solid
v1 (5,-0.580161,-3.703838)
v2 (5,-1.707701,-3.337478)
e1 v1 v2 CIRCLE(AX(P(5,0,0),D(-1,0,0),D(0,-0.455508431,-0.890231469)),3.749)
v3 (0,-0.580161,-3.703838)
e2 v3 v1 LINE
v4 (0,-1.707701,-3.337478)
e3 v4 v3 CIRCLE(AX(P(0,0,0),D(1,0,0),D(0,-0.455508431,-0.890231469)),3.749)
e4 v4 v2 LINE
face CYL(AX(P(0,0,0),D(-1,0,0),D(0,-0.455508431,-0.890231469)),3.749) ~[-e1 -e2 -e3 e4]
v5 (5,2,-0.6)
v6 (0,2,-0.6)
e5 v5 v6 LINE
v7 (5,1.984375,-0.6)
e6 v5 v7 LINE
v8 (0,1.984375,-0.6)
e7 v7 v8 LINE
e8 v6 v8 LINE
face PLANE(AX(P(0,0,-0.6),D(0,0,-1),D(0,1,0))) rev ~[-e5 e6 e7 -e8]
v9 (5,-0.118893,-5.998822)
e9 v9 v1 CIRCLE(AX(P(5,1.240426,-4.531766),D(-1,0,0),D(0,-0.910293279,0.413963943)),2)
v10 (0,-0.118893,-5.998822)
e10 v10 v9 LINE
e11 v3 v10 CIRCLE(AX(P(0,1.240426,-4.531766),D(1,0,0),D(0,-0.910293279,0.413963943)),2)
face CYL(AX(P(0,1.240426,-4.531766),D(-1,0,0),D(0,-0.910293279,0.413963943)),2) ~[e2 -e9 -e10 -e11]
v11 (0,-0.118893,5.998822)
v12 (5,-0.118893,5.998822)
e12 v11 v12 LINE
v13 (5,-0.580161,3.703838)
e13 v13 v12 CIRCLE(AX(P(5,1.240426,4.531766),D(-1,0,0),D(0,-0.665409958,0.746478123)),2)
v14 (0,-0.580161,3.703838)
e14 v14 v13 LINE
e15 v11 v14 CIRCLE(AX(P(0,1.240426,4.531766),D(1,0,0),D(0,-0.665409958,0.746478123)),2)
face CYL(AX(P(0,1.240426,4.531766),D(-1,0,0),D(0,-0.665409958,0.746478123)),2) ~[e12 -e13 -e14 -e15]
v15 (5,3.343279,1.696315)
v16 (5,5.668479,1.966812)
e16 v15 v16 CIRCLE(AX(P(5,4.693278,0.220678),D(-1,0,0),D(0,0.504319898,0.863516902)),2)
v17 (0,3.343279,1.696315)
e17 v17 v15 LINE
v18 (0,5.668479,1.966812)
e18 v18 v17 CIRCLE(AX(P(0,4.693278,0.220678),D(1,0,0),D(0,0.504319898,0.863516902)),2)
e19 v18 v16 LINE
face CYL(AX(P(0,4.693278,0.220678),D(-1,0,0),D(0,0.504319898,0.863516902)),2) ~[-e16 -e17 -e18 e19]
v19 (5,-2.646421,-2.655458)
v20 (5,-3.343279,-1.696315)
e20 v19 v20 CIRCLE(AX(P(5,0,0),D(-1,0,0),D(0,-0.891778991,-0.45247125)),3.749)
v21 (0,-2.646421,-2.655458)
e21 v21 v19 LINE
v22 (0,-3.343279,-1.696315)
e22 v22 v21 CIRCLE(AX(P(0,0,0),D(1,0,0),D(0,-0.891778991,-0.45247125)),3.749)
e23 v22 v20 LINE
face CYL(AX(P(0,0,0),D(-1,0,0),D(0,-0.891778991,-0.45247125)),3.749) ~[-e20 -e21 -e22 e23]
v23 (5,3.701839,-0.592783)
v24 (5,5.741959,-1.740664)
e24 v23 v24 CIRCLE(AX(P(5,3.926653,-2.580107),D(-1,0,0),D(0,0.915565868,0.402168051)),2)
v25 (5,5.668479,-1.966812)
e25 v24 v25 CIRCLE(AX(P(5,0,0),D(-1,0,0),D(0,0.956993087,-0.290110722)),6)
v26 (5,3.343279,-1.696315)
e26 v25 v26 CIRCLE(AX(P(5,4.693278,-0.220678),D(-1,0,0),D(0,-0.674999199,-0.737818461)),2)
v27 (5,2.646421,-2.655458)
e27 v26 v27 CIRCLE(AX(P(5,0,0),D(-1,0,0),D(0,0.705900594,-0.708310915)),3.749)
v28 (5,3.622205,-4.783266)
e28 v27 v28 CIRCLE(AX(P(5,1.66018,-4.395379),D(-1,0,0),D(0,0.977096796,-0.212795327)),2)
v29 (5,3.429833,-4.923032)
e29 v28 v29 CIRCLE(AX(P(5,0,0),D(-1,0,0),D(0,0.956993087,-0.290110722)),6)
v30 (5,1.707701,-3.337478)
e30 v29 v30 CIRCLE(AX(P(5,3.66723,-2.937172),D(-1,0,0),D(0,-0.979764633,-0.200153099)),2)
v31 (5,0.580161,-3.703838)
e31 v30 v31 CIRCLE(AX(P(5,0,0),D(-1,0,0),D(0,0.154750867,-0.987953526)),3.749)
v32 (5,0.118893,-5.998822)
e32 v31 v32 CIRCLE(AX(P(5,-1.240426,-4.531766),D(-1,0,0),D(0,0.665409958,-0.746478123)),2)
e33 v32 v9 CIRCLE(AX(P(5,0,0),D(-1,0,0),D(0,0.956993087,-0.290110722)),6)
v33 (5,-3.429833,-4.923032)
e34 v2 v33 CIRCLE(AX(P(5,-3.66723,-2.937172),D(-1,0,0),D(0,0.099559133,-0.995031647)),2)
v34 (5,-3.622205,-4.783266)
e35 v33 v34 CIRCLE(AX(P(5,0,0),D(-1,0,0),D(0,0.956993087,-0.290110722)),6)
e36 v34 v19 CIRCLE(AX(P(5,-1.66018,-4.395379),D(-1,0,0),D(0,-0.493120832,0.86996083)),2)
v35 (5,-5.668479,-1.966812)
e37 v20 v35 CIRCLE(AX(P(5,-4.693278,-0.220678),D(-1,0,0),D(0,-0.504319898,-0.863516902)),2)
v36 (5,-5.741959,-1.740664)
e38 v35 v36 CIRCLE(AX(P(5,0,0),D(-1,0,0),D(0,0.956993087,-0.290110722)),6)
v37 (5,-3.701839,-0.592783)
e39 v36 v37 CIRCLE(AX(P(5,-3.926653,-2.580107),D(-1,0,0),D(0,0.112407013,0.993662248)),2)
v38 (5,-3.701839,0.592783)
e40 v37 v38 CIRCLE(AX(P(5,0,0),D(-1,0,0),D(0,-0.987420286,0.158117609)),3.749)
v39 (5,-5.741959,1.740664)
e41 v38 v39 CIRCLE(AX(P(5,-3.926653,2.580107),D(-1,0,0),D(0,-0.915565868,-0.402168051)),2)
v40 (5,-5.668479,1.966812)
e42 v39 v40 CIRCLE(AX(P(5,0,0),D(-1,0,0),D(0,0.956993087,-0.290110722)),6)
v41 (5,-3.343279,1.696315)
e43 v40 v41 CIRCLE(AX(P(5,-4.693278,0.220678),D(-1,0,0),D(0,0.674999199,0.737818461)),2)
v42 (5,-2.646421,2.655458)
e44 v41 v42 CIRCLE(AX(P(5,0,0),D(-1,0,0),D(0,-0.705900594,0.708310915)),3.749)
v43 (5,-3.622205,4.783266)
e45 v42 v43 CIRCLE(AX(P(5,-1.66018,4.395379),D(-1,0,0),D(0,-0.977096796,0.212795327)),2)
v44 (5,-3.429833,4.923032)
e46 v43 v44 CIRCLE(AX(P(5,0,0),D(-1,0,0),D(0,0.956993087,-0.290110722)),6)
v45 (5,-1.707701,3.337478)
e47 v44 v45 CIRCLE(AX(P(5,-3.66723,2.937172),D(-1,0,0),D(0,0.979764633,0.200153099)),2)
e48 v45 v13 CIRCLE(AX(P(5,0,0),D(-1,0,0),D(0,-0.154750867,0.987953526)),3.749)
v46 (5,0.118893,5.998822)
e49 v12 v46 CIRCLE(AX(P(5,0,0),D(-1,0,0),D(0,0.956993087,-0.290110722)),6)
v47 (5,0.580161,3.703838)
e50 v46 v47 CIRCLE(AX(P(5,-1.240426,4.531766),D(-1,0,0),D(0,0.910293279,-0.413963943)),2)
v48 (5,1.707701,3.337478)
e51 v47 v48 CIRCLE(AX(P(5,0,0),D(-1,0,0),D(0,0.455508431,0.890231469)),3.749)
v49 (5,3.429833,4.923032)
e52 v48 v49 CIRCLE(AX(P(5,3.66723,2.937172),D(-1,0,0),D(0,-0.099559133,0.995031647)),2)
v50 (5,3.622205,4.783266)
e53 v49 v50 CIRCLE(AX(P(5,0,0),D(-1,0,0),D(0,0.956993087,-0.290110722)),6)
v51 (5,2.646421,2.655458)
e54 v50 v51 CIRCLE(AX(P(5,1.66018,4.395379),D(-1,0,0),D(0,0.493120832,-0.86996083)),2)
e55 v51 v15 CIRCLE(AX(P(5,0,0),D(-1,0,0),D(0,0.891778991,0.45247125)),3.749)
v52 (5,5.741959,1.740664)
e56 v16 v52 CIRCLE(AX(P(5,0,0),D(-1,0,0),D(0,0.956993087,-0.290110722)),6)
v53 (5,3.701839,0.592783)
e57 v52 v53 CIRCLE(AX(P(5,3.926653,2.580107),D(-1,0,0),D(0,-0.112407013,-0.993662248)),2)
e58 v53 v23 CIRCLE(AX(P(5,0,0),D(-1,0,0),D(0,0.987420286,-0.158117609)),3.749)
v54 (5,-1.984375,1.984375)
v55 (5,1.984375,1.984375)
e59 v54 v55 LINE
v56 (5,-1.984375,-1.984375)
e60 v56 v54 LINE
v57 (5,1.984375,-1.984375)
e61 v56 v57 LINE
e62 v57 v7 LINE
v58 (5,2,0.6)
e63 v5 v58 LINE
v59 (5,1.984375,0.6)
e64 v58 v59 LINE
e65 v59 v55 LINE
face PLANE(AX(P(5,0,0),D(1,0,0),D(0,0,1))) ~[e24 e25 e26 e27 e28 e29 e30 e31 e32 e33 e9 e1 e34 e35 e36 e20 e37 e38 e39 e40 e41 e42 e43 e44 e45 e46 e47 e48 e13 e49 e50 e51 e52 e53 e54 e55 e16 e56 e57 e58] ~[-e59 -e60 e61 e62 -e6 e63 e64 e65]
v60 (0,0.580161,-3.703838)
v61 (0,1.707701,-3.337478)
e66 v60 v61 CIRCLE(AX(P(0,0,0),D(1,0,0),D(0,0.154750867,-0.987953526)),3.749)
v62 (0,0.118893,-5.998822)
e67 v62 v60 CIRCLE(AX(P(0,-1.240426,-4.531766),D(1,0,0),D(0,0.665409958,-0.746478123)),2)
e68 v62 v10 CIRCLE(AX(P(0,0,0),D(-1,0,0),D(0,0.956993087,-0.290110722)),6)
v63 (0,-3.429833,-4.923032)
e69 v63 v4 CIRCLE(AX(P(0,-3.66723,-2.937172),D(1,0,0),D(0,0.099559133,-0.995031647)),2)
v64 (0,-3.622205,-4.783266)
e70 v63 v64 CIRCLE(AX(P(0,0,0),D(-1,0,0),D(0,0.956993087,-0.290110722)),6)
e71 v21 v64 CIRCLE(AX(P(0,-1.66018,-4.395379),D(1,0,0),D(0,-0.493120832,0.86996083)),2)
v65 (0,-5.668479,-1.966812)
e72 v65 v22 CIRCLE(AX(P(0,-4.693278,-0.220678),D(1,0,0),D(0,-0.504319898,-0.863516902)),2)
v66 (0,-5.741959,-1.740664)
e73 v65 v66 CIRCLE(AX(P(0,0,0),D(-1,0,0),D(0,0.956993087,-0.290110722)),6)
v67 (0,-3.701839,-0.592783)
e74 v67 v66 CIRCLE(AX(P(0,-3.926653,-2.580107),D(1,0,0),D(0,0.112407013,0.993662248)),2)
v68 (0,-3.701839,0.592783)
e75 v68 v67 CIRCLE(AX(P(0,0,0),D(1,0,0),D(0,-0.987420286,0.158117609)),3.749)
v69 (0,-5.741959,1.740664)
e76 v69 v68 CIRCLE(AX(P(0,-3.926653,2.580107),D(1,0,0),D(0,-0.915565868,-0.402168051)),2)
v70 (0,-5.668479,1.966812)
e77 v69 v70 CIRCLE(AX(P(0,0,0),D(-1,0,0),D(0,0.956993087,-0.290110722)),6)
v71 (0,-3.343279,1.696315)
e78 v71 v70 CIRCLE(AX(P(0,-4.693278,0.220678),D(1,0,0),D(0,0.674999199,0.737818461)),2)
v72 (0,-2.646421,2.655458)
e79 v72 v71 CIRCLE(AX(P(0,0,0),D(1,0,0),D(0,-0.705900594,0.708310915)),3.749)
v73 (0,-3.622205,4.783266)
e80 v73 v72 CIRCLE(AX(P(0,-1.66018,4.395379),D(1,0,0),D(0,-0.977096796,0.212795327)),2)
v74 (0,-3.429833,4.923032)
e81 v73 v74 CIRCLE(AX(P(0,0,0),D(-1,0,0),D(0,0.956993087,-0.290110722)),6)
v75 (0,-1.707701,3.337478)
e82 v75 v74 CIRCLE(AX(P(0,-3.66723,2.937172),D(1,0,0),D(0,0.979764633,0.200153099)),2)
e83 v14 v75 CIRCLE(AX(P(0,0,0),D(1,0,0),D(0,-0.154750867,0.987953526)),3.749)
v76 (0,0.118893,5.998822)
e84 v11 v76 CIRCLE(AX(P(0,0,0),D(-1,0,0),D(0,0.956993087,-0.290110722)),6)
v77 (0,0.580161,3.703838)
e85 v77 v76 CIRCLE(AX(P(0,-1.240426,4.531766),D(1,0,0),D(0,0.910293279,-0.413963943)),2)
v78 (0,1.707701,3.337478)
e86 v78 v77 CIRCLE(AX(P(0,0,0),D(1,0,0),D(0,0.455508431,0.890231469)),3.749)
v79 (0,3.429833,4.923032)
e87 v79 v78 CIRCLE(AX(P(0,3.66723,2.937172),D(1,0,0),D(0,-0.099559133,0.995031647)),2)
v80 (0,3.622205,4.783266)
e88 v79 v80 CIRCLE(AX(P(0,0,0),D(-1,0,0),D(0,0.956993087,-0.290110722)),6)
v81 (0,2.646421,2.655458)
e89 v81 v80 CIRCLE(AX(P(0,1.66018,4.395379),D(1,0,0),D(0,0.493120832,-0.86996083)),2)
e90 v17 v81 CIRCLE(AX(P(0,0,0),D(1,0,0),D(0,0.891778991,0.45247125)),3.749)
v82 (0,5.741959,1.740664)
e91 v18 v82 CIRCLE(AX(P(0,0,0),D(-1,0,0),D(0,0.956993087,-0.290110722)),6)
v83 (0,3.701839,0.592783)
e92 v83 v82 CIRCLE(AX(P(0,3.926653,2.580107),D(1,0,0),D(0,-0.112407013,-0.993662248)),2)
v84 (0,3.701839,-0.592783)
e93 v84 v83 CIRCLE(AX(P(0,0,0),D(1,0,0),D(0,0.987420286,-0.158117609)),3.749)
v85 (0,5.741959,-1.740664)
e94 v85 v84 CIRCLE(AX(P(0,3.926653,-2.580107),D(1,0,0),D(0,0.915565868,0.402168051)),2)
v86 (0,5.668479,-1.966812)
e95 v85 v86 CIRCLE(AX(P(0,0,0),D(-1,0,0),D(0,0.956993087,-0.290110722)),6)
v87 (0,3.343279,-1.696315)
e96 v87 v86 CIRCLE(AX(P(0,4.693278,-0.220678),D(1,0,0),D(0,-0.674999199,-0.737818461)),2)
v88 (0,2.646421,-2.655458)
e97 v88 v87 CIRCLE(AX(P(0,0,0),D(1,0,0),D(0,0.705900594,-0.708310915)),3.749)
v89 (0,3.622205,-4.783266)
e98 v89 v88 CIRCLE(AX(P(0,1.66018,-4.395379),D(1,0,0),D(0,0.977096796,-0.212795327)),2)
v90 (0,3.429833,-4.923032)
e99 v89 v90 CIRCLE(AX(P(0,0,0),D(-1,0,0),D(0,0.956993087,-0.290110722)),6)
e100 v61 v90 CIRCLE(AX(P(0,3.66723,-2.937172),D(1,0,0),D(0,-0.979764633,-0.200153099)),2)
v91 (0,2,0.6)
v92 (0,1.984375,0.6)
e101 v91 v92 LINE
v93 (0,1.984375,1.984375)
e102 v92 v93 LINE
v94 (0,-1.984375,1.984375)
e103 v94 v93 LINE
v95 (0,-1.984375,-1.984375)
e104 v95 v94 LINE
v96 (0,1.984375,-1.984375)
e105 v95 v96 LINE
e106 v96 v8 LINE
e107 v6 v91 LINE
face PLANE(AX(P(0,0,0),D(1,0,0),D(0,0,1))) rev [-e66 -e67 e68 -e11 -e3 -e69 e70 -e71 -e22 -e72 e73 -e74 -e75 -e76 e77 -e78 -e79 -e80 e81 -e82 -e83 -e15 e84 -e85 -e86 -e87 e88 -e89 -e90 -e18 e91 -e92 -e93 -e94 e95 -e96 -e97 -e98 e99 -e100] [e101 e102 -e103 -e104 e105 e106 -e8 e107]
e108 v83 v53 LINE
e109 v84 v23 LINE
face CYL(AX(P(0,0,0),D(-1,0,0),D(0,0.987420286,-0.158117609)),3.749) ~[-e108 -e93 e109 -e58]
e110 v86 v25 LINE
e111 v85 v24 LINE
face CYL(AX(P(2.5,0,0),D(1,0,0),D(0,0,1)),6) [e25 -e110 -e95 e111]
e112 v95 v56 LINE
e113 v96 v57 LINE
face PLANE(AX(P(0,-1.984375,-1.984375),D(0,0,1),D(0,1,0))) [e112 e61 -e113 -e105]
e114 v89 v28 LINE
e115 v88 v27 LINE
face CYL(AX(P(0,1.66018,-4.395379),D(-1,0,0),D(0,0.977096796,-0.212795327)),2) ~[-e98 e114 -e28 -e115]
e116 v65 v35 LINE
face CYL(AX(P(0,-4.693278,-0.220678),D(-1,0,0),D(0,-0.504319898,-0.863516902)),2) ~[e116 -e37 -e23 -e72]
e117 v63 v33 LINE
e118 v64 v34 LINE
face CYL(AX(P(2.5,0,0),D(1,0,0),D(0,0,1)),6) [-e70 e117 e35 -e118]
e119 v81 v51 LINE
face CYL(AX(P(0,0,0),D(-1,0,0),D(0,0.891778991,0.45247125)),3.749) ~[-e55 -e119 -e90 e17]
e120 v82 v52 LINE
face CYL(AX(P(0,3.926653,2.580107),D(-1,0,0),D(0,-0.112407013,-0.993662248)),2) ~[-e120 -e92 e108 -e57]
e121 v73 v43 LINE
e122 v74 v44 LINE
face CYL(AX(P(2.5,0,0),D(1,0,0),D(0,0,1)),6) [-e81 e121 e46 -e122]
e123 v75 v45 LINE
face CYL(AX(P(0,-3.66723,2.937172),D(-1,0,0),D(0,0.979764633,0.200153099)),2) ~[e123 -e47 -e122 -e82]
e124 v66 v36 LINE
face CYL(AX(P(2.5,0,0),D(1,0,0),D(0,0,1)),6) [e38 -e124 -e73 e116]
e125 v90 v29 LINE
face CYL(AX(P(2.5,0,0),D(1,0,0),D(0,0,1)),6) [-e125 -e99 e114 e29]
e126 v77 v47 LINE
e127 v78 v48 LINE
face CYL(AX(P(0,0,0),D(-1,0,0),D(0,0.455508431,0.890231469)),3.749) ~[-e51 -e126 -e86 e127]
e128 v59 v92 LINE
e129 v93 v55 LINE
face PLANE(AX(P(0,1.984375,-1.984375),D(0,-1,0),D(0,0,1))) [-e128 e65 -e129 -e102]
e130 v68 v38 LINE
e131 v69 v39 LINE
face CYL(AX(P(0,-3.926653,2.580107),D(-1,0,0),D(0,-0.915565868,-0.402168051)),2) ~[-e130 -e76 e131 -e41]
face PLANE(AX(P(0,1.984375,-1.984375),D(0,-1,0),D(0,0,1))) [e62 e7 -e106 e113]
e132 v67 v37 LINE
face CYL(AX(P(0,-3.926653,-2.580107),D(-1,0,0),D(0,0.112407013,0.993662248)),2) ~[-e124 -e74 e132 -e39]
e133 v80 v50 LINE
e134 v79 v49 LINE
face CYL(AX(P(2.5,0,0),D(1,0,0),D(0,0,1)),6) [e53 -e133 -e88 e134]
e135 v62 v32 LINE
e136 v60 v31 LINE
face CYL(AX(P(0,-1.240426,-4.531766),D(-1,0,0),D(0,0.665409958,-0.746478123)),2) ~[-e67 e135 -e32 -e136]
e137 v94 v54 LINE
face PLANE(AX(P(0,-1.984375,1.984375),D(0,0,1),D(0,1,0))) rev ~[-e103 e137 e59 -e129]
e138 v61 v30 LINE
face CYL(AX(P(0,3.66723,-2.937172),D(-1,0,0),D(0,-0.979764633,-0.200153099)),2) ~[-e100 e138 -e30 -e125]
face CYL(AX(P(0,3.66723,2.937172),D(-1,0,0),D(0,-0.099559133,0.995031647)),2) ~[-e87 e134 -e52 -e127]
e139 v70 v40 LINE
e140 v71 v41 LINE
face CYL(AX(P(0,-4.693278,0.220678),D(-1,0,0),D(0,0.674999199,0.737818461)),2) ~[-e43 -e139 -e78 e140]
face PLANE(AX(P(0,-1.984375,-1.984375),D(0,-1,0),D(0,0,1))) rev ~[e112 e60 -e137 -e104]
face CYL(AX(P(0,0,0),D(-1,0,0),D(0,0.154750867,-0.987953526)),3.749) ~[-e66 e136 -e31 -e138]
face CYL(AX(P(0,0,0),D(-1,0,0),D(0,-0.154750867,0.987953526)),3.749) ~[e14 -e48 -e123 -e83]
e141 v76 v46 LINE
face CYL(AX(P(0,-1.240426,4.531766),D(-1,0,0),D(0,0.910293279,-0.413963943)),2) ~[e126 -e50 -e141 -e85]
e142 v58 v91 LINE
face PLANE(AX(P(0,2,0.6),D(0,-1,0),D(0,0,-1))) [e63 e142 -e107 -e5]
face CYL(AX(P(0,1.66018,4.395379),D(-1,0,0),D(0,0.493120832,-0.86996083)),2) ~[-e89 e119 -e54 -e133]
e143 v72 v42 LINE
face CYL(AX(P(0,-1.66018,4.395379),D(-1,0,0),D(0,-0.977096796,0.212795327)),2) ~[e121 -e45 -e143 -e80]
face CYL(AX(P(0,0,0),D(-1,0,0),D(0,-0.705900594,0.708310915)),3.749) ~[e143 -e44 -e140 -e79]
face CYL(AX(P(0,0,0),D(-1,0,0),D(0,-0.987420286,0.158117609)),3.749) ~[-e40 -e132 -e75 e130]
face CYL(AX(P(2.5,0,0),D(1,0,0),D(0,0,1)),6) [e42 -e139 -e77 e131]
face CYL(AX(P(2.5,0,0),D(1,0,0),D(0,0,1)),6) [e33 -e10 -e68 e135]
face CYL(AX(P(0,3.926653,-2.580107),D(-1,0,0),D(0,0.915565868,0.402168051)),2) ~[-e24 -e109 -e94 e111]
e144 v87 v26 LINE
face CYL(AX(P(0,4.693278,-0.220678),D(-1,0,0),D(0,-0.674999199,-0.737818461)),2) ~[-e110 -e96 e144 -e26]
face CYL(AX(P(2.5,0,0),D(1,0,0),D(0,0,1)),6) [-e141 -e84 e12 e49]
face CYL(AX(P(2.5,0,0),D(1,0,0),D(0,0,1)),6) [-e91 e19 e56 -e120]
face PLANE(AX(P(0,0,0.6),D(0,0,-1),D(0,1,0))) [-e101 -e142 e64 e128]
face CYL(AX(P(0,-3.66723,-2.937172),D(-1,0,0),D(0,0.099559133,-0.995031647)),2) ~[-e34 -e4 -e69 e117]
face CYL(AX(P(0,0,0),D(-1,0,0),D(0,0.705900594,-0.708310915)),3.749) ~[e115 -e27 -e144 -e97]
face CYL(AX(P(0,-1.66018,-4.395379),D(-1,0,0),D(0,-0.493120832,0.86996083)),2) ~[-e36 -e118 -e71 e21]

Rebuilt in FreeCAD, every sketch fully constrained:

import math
import FreeCAD as App
import Part
import Sketcher
Q = App.Units.Quantity


def add_polygon(sketch, points):
    """Adds a closed chain of lines whose ends are joined by coincident constraints."""
    first, n = sketch.GeometryCount, len(points)
    for a, b in zip(points, points[1:] + points[:1]):
        sketch.addGeometry(Part.LineSegment(App.Vector(*a, 0), App.Vector(*b, 0)), False)
    for i in range(n):
        sketch.addConstraint(Sketcher.Constraint("Coincident", first + i, 2, first + (i + 1) % n, 1))

doc = App.newDocument("Part")
body = doc.addObject("PartDesign::Body", "Body")

# Sketch on XZ plane
sketch1 = body.newObject("Sketcher::SketchObject", "Sketch")
sketch1.AttachmentSupport = (doc.getObject("XZ_Plane"), [""])
sketch1.MapMode = "FlatFace"
add_polygon(sketch1, [(0, -6), (0, 0), (5, 0), (5, -6)])  # lines 0-3
sketch1.addConstraint(Sketcher.Constraint("Vertical", 0))
sketch1.addConstraint(Sketcher.Constraint("Horizontal", 1))
sketch1.addConstraint(Sketcher.Constraint("Vertical", 2))
sketch1.addConstraint(Sketcher.Constraint("Horizontal", 3))
sketch1.addConstraint(Sketcher.Constraint("Coincident", 0, 2, -1, 1))
sketch1.addConstraint(Sketcher.Constraint("DistanceX", 1, 1, 1, 2, Q("5 mm")))
sketch1.addConstraint(Sketcher.Constraint("DistanceY", 0, 1, 0, 2, Q("6 mm")))
revolution = body.newObject("PartDesign::Revolution", "Revolution")
revolution.Profile = sketch1
revolution.ReferenceAxis = (sketch1, ["H_Axis"])
revolution.Angle = 360

# Sketch on YZ plane
sketch2 = body.newObject("Sketcher::SketchObject", "Sketch001")
sketch2.AttachmentSupport = (doc.getObject("YZ_Plane"), [""])
sketch2.MapMode = "FlatFace"
sketch2.addGeometry(Part.ArcOfCircle(Part.Circle(App.Vector(0, 0, 0), App.Vector(0, 0, 1), 3.7), math.radians(-9.1), math.radians(9.1)), False)
sketch2.addGeometry(Part.ArcOfCircle(Part.Circle(App.Vector(3.9, -2.6, 0), App.Vector(0, 0, 1), 2), math.radians(24), math.radians(96)), False)
sketch2.addGeometry(Part.ArcOfCircle(Part.Circle(App.Vector(0, 0, 0), App.Vector(0, 0, 1), 6), math.radians(-17), math.radians(17)), False)
sketch2.addGeometry(Part.ArcOfCircle(Part.Circle(App.Vector(3.9, 2.6, 0), App.Vector(0, 0, 1), 2), math.radians(-96), math.radians(-24)), False)
sketch2.addConstraint(Sketcher.Constraint("Coincident", 0, 1, 1, 2))
sketch2.addConstraint(Sketcher.Constraint("Coincident", 1, 1, 2, 1))
sketch2.addConstraint(Sketcher.Constraint("Coincident", 2, 2, 3, 2))
sketch2.addConstraint(Sketcher.Constraint("Coincident", 3, 1, 0, 2))
sketch2.addConstraint(Sketcher.Constraint("Coincident", 0, 3, -1, 1))
sketch2.addConstraint(Sketcher.Constraint("Coincident", 2, 3, -1, 1))
sketch2.addConstraint(Sketcher.Constraint("Equal", 1, 3))
sketch2.addConstraint(Sketcher.Constraint("Symmetric", 1, 3, 3, 3, -1))
sketch2.addConstraint(Sketcher.Constraint("Radius", 1, Q("2 mm")))
sketch2.addConstraint(Sketcher.Constraint("Radius", 0, Q("3.749 mm")))
sketch2.addConstraint(Sketcher.Constraint("Radius", 2, Q("6.0254 mm")))
sketch2.addConstraint(Sketcher.Constraint("DistanceX", -1, 1, 0, 1, Q("3.701839 mm")))
sketch2.addConstraint(Sketcher.Constraint("DistanceY", 1, 1, -1, 1, Q("1.775771 mm")))
pocket1 = body.newObject("PartDesign::Pocket", "Pocket")
pocket1.Profile = sketch2
pocket1.Type = "ThroughAll"
pocket1.Reversed = True
doc.recompute()

polarpattern = body.newObject("PartDesign::PolarPattern", "PolarPattern")
polarpattern.Originals = [pocket1]
polarpattern.Axis = (doc.getObject("X_Axis"), [""])
polarpattern.Angle = 360
polarpattern.Occurrences = 10
body.Tip = polarpattern

# Sketch on YZ plane
sketch3 = body.newObject("Sketcher::SketchObject", "Sketch002")
sketch3.AttachmentSupport = (doc.getObject("YZ_Plane"), [""])
sketch3.MapMode = "FlatFace"
sketch3.addGeometry(Part.Circle(App.Vector(0, 0, 0), App.Vector(0, 0, 1), 1.5), False)
sketch3.addConstraint(Sketcher.Constraint("Coincident", 0, 3, -1, 1))
sketch3.addConstraint(Sketcher.Constraint("Diameter", 0, Q("3 mm")))
pocket2 = body.newObject("PartDesign::Pocket", "Pocket001")
pocket2.Profile = sketch3
pocket2.Length = 100.000102
pocket2.Midplane = True

# Sketch on YZ plane
sketch4 = body.newObject("Sketcher::SketchObject", "Sketch003")
sketch4.AttachmentSupport = (doc.getObject("YZ_Plane"), [""])
sketch4.MapMode = "FlatFace"
add_polygon(sketch4, [(2, 0.6), (0, 0.6), (0, -0.6), (2, -0.6)])  # lines 0-3
sketch4.addConstraint(Sketcher.Constraint("Horizontal", 0))
sketch4.addConstraint(Sketcher.Constraint("Vertical", 1))
sketch4.addConstraint(Sketcher.Constraint("Horizontal", 2))
sketch4.addConstraint(Sketcher.Constraint("Vertical", 3))
sketch4.addConstraint(Sketcher.Constraint("Symmetric", 0, 2, 1, 2, -1, 1))
sketch4.addConstraint(Sketcher.Constraint("DistanceX", 0, 2, 0, 1, Q("2 mm")))
sketch4.addConstraint(Sketcher.Constraint("DistanceY", 1, 2, 1, 1, Q("1.2 mm")))
pocket3 = body.newObject("PartDesign::Pocket", "Pocket002")
pocket3.Profile = sketch4
pocket3.Length = 100.000102
pocket3.Midplane = True

# Sketch on YZ plane
sketch5 = body.newObject("Sketcher::SketchObject", "Sketch004")
sketch5.AttachmentSupport = (doc.getObject("YZ_Plane"), [""])
sketch5.MapMode = "FlatFace"
add_polygon(sketch5, [(2, -2), (-2, -2), (-2, 2), (2, 2)])  # lines 0-3
sketch5.addConstraint(Sketcher.Constraint("Horizontal", 0))
sketch5.addConstraint(Sketcher.Constraint("Vertical", 1))
sketch5.addConstraint(Sketcher.Constraint("Horizontal", 2))
sketch5.addConstraint(Sketcher.Constraint("Vertical", 3))
sketch5.addConstraint(Sketcher.Constraint("Symmetric", 0, 2, 2, 2, -1, 1))
sketch5.addConstraint(Sketcher.Constraint("Equal", 2, 1))
sketch5.addConstraint(Sketcher.Constraint("DistanceX", 0, 2, 0, 1, Q("3.96875 mm")))
pocket4 = body.newObject("PartDesign::Pocket", "Pocket003")
pocket4.Profile = sketch5
pocket4.Type = "ThroughAll"
pocket4.Reversed = True

doc.recompute()
